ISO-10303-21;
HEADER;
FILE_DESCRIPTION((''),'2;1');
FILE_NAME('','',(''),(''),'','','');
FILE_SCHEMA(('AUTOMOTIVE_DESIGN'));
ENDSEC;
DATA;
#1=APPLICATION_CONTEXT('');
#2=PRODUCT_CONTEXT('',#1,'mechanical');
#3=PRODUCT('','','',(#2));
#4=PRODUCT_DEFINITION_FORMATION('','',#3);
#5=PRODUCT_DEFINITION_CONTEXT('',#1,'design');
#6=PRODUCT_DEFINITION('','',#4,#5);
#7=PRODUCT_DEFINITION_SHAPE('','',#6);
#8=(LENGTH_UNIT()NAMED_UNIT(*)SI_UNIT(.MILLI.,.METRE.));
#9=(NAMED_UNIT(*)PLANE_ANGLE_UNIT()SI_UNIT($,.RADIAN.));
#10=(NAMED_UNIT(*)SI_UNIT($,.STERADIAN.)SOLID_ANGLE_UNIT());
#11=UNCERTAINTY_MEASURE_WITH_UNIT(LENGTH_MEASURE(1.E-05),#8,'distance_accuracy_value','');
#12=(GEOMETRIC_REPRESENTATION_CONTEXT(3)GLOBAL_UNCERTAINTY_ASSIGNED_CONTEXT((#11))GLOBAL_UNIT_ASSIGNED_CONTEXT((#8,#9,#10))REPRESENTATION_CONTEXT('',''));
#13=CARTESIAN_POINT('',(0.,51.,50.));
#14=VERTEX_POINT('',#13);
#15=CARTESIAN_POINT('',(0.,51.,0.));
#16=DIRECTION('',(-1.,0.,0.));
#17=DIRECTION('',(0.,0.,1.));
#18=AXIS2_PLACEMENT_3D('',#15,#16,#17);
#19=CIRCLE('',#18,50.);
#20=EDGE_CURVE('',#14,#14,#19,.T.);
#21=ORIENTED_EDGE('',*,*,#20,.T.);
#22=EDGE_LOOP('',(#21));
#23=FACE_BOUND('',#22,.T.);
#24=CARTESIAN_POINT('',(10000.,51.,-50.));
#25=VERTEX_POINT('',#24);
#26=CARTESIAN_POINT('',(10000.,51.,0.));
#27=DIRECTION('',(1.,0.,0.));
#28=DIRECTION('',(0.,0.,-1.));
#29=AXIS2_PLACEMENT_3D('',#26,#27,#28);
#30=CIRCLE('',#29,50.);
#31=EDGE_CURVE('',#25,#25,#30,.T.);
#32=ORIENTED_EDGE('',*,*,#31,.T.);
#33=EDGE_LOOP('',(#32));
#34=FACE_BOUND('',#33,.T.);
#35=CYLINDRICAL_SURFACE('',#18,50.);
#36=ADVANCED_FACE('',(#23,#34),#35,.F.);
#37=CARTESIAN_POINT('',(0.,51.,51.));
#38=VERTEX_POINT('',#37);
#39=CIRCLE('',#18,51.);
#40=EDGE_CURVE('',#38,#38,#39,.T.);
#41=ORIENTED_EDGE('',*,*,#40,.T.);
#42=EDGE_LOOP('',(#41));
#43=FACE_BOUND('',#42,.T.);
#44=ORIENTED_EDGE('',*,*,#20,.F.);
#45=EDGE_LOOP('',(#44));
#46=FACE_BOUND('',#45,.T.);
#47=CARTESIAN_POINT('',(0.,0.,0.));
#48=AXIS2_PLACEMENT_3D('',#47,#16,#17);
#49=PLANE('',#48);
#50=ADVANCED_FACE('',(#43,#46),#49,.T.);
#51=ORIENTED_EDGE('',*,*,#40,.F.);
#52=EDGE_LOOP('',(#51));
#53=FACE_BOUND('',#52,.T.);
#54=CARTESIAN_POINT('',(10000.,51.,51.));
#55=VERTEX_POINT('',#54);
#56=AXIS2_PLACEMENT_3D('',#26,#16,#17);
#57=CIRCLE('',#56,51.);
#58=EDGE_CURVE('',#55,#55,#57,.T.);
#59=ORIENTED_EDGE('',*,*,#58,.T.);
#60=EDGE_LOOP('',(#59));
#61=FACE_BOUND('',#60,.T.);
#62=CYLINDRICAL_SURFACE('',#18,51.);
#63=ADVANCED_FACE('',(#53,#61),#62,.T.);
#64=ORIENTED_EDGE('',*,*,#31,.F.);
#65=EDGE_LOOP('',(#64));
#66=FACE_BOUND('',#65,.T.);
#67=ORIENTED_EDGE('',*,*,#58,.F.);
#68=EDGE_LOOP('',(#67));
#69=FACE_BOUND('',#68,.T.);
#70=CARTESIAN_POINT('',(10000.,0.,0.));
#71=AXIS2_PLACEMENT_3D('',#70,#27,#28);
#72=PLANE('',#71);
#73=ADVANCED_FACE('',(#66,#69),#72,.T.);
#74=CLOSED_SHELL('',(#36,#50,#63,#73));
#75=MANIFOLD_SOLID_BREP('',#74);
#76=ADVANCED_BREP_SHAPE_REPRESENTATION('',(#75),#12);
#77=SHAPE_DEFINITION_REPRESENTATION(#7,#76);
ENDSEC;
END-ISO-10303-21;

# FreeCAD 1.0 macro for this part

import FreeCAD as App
import Part
import Sketcher

doc = App.newDocument("Part")
params = doc.addObject("Spreadsheet::Sheet", "Params")
for row, (alias, value) in enumerate([
    ("sketch1_width", "10000 mm"),
    ("sketch1_width2", "9998 mm"),
    ("sketch1_height", "51 mm"),
    ("sketch1_height2", "49 mm"),
    ("revolution_angle", "360 deg"),
    ("sketch2_diameter", "100 mm"),
    ("pocket1_length", "102101 mm"),
], start=1):
    params.set(f"A{row}", alias)
    params.set(f"B{row}", "=" + value)
    params.setAlias(f"B{row}", alias)

body = doc.addObject("PartDesign::Body", "Body")

sketch1 = body.newObject("Sketcher::SketchObject", "Sketch")
sketch1.AttachmentSupport = (doc.getObject("XY_Plane"), [""])
sketch1.MapMode = "FlatFace"
sketch1.addGeometry([
    Part.LineSegment(App.Vector(0, 51, 0), App.Vector(0, 0, 0)),
    Part.LineSegment(App.Vector(0, 0, 0), App.Vector(10000, 0, 0)),
    Part.LineSegment(App.Vector(10000, 0, 0), App.Vector(10000, 51, 0)),
    Part.LineSegment(App.Vector(10000, 51, 0), App.Vector(0, 51, 0)),
    Part.LineSegment(App.Vector(9999, 1, 0), App.Vector(1, 1, 0)),
    Part.LineSegment(App.Vector(1, 1, 0), App.Vector(1, 50, 0)),
    Part.LineSegment(App.Vector(1, 50, 0), App.Vector(9999, 50, 0)),
    Part.LineSegment(App.Vector(9999, 50, 0), App.Vector(9999, 1, 0)),
], False)
sketch1.addGeometry(Part.LineSegment(App.Vector(0, 51, 0), App.Vector(10000, 51, 0)), True)
sketch1.addConstraint([
    Sketcher.Constraint("Coincident", 0, 2, 1, 1),
    Sketcher.Constraint("Coincident", 1, 2, 2, 1),
    Sketcher.Constraint("Coincident", 2, 2, 3, 1),
    Sketcher.Constraint("Coincident", 3, 2, 0, 1),
    Sketcher.Constraint("Coincident", 4, 2, 5, 1),
    Sketcher.Constraint("Coincident", 5, 2, 6, 1),
    Sketcher.Constraint("Coincident", 6, 2, 7, 1),
    Sketcher.Constraint("Coincident", 7, 2, 4, 1),
    Sketcher.Constraint("Vertical", 0),
    Sketcher.Constraint("Horizontal", 1),
    Sketcher.Constraint("Vertical", 2),
    Sketcher.Constraint("Horizontal", 3),
    Sketcher.Constraint("Horizontal", 4),
    Sketcher.Constraint("Vertical", 5),
    Sketcher.Constraint("Horizontal", 6),
    Sketcher.Constraint("Vertical", 7),
    Sketcher.Constraint("Horizontal", 8),
    Sketcher.Constraint("Coincident", 0, 2, -1, 1),
    Sketcher.Constraint("Coincident", 8, 1, 3, 2),
    Sketcher.Constraint("Vertical", 1, 2, 8, 2),
    Sketcher.Constraint("DistanceX", 1, 1, 1, 2, 10000.0),
    Sketcher.Constraint("DistanceX", 4, 2, 4, 1, 9998.0),
    Sketcher.Constraint("DistanceY", 0, 2, 0, 1, 51.0),
    Sketcher.Constraint("DistanceY", 5, 1, 5, 2, 49.0),
    Sketcher.Constraint("DistanceX", -1, 1, 4, 2, 1.0),
    Sketcher.Constraint("DistanceY", -1, 1, 4, 2, 1.0),
])
sketch1.setExpression("Constraints[20]", "Params.sketch1_width")
sketch1.setExpression("Constraints[21]", "Params.sketch1_width2")
sketch1.setExpression("Constraints[22]", "Params.sketch1_height")
sketch1.setExpression("Constraints[23]", "Params.sketch1_height2")
revolution = body.newObject("PartDesign::Revolution", "Revolution")
revolution.Profile = sketch1
revolution.ReferenceAxis = (sketch1, ["Axis0"])
revolution.setExpression("Angle", "Params.revolution_angle")

sketch2 = body.newObject("Sketcher::SketchObject", "Sketch001")
sketch2.AttachmentSupport = (doc.getObject("YZ_Plane"), [""])
sketch2.MapMode = "FlatFace"
sketch2.AttachmentOffset = App.Placement(App.Vector(0, 0, 10000), App.Rotation())
sketch2.addGeometry(Part.Circle(App.Vector(51, 0, 0), App.Vector(0, 0, 1), 50), False)
sketch2.addConstraint([
    Sketcher.Constraint("PointOnObject", 0, 3, -1),
    Sketcher.Constraint("Diameter", 0, 100.0),
    Sketcher.Constraint("DistanceX", -1, 1, 0, 3, 51.0),
])
sketch2.setExpression("Constraints[1]", "Params.sketch2_diameter")
pocket1 = body.newObject("PartDesign::Pocket", "Pocket")
pocket1.Profile = sketch2
pocket1.setExpression("Length", "Params.pocket1_length")

doc.recompute()
